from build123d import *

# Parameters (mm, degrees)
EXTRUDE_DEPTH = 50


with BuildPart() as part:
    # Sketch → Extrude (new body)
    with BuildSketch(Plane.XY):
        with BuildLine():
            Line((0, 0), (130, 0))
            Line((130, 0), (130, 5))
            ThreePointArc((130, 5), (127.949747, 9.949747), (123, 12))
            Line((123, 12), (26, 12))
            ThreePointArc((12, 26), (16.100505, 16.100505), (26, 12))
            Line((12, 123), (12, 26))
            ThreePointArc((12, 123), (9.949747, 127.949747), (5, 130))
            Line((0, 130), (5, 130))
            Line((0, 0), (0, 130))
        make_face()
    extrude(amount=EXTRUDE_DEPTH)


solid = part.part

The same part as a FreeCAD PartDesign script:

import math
import FreeCAD as App
import Part
import Sketcher
from FreeCAD import Vector

doc = App.newDocument("Part")
params = doc.addObject("Spreadsheet::Sheet", "Params")
for row, (alias, value) in enumerate([
    ("sketch1_radius", "7.000002 mm"),
    ("sketch1_radius2", "14 mm"),
    ("sketch1_width", "130 mm"),
    ("sketch1_width2", "97 mm"),
    ("pad1_length", "50 mm"),
], start=1):
    params.set(f"A{row}", alias)
    params.set(f"B{row}", "=" + value)
    params.setAlias(f"B{row}", alias)

body = doc.addObject("PartDesign::Body", "Body")

# Sketch on XY plane
sketch1 = body.newObject("Sketcher::SketchObject", "Sketch")
sketch1.AttachmentSupport = (doc.getObject("XY_Plane"), [""])
sketch1.MapMode = "FlatFace"
sketch1.addGeometry(Part.LineSegment(Vector(0, 0, 0), Vector(130, 0, 0)), False)
sketch1.addGeometry(Part.LineSegment(Vector(130, 0, 0), Vector(130, 5, 0)), False)
sketch1.addGeometry(Part.ArcOfCircle(Part.Circle(Vector(123, 5, 0), Vector(0, 0, 1), 7), math.radians(0), math.radians(90)), False)
sketch1.addGeometry(Part.LineSegment(Vector(123, 12, 0), Vector(26, 12, 0)), False)
sketch1.addGeometry(Part.ArcOfCircle(Part.Circle(Vector(26, 26, 0), Vector(0, 0, 1), 14), math.radians(180), math.radians(270)), False)
sketch1.addGeometry(Part.LineSegment(Vector(12, 26, 0), Vector(12, 123, 0)), False)
sketch1.addGeometry(Part.ArcOfCircle(Part.Circle(Vector(5, 123, 0), Vector(0, 0, 1), 7), math.radians(0), math.radians(90)), False)
sketch1.addGeometry(Part.LineSegment(Vector(5, 130, 0), Vector(0, 130, 0)), False)
sketch1.addGeometry(Part.LineSegment(Vector(0, 130, 0), Vector(0, 0, 0)), False)
sketch1.addConstraint(Sketcher.Constraint("Coincident", 0, 2, 1, 1))
sketch1.addConstraint(Sketcher.Constraint("Tangent", 1, 2, 2, 1))
sketch1.addConstraint(Sketcher.Constraint("Tangent", 2, 2, 3, 1))
sketch1.addConstraint(Sketcher.Constraint("Tangent", 3, 2, 4, 2))
sketch1.addConstraint(Sketcher.Constraint("Tangent", 4, 1, 5, 1))
sketch1.addConstraint(Sketcher.Constraint("Tangent", 5, 2, 6, 1))
sketch1.addConstraint(Sketcher.Constraint("Tangent", 6, 2, 7, 1))
sketch1.addConstraint(Sketcher.Constraint("Coincident", 7, 2, 8, 1))
sketch1.addConstraint(Sketcher.Constraint("Coincident", 8, 2, 0, 1))
sketch1.addConstraint(Sketcher.Constraint("Horizontal", 0))
sketch1.addConstraint(Sketcher.Constraint("Vertical", 1))
sketch1.addConstraint(Sketcher.Constraint("Horizontal", 3))
sketch1.addConstraint(Sketcher.Constraint("Vertical", 5))
sketch1.addConstraint(Sketcher.Constraint("Horizontal", 7))
sketch1.addConstraint(Sketcher.Constraint("Vertical", 8))
sketch1.addConstraint(Sketcher.Constraint("Coincident", 8, 2, -1, 1))
sketch1.addConstraint(Sketcher.Constraint("Equal", 2, 6))
sketch1.addConstraint(Sketcher.Constraint("Equal", 7, 1))
sketch1.addConstraint(Sketcher.Constraint("Equal", 3, 5))
sketch1.addConstraint(Sketcher.Constraint("Radius", 2, 7.000002))
sketch1.addConstraint(Sketcher.Constraint("Radius", 4, 14.0))
sketch1.addConstraint(Sketcher.Constraint("DistanceX", 0, 1, 0, 2, 130.0))
sketch1.addConstraint(Sketcher.Constraint("DistanceX", 3, 2, 3, 1, 97.0))
sketch1.setExpression("Constraints[19]", "Params.sketch1_radius")
sketch1.setExpression("Constraints[20]", "Params.sketch1_radius2")
sketch1.setExpression("Constraints[21]", "Params.sketch1_width")
sketch1.setExpression("Constraints[22]", "Params.sketch1_width2")
pad1 = body.newObject("PartDesign::Pad", "Pad")
pad1.Profile = sketch1
pad1.setExpression("Length", "Params.pad1_length")

doc.recompute()
